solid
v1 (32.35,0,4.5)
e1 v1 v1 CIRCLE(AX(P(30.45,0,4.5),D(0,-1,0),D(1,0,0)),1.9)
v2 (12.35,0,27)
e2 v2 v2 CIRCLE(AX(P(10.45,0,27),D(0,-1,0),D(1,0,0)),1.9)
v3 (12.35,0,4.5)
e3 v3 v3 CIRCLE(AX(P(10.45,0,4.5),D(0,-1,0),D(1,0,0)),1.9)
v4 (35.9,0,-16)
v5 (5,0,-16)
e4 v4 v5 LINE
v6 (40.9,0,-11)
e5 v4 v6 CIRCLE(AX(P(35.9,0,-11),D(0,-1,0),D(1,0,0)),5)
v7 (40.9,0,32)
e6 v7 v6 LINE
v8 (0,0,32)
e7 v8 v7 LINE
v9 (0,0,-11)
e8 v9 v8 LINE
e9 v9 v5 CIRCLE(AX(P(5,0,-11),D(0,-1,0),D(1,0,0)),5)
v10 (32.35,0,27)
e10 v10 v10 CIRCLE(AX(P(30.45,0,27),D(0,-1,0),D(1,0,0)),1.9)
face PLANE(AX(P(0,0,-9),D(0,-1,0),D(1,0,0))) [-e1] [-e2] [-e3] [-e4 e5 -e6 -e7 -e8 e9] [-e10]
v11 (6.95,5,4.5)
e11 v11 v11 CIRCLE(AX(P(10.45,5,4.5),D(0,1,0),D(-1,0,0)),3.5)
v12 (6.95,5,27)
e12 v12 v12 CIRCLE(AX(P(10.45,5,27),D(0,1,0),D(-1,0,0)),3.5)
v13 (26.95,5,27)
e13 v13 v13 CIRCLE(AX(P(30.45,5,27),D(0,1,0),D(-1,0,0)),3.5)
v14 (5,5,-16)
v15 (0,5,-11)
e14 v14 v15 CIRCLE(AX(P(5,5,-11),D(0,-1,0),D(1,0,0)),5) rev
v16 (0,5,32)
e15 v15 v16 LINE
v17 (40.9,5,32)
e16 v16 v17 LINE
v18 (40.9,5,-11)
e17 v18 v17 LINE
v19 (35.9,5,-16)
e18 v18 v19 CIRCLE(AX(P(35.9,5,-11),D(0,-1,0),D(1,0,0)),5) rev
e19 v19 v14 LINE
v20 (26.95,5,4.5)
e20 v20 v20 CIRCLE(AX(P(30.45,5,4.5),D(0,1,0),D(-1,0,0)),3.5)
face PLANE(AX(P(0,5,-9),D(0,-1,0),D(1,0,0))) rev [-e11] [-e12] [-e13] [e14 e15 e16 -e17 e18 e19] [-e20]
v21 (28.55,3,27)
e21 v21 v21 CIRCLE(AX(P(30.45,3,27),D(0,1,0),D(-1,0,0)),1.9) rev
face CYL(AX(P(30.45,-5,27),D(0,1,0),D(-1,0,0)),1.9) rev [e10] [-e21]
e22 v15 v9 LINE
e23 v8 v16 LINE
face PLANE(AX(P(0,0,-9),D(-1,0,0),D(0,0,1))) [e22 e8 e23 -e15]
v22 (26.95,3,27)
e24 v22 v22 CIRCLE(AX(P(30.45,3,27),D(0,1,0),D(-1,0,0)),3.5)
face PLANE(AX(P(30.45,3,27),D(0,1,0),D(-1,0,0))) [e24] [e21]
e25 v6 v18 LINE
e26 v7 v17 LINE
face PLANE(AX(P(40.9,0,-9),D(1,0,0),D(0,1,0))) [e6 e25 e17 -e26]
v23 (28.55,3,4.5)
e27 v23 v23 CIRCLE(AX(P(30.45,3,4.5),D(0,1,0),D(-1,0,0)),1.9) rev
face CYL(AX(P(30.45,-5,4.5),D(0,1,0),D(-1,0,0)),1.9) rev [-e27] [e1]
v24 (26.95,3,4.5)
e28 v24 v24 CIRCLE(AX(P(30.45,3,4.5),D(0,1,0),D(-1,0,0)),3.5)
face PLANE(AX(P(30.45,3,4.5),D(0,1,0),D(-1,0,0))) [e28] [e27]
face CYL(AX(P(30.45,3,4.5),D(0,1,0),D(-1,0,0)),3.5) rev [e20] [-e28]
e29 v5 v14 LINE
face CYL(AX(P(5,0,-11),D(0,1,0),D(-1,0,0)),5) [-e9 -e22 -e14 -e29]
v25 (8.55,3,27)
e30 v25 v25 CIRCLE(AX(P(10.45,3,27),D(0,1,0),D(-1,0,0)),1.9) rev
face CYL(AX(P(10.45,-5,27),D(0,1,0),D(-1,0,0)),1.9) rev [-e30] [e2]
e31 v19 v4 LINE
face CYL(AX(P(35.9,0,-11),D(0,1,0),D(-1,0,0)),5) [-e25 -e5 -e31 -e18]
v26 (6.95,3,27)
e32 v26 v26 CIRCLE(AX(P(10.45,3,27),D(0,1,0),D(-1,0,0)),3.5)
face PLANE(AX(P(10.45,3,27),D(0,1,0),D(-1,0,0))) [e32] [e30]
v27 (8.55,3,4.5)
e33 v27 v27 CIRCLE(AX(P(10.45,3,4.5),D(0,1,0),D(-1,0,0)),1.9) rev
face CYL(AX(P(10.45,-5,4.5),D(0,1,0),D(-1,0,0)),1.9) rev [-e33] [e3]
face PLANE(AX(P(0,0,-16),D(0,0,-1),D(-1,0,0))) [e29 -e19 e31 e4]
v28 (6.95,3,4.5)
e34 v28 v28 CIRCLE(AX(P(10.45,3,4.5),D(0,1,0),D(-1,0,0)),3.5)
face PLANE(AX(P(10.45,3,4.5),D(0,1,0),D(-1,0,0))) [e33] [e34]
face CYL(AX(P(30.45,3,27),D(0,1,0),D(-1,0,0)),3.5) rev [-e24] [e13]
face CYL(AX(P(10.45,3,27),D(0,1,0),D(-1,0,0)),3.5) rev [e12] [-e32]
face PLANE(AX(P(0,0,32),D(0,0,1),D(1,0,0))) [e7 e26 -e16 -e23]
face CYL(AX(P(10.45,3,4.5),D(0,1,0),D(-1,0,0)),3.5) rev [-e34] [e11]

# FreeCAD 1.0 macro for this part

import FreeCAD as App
import Part
import Sketcher

V = App.Vector


def edges_at(feature, points):
    """Names of the edges that pass closest to the given points."""
    edges = feature.Shape.Edges
    near = lambda p: min(range(len(edges)), key=lambda i: edges[i].distToShape(Part.Vertex(*p))[0])
    return sorted({f"Edge{near(p) + 1}" for p in points})

doc = App.newDocument("Part")
body = doc.addObject("PartDesign::Body", "Body")

sketch1 = body.newObject("Sketcher::SketchObject", "Sketch")
sketch1.AttachmentSupport = (doc.getObject("XY_Plane"), [""])
sketch1.MapMode = "FlatFace"
sketch1.addGeometry(Part.LineSegment(V(-8, 25, 0), V(-8, 0, 0)), False)
sketch1.addGeometry(Part.LineSegment(V(-8, 0, 0), V(48.9, 0, 0)), False)
sketch1.addGeometry(Part.LineSegment(V(48.9, 0, 0), V(48.9, 25, 0)), False)
sketch1.addGeometry(Part.LineSegment(V(48.9, 25, 0), V(40.9, 25, 0)), False)
sketch1.addGeometry(Part.LineSegment(V(40.9, 25, 0), V(40.9, 5, 0)), False)
sketch1.addGeometry(Part.LineSegment(V(40.9, 5, 0), V(0, 5, 0)), False)
sketch1.addGeometry(Part.LineSegment(V(0, 5, 0), V(0, 25, 0)), False)
sketch1.addGeometry(Part.LineSegment(V(0, 25, 0), V(-8, 25, 0)), False)
sketch1.addGeometry(Part.Circle(V(-3.9, 10, 0), V(0, 0, 1), 2), False)
sketch1.addGeometry(Part.Circle(V(-3.9, 20, 0), V(0, 0, 1), 2), False)
sketch1.addGeometry(Part.Circle(V(44.8, 20, 0), V(0, 0, 1), 2), False)
sketch1.addGeometry(Part.Circle(V(44.8, 10, 0), V(0, 0, 1), 2), False)
sketch1.addConstraint(Sketcher.Constraint("Coincident", 0, 2, 1, 1))
sketch1.addConstraint(Sketcher.Constraint("Coincident", 1, 2, 2, 1))
sketch1.addConstraint(Sketcher.Constraint("Coincident", 2, 2, 3, 1))
sketch1.addConstraint(Sketcher.Constraint("Coincident", 3, 2, 4, 1))
sketch1.addConstraint(Sketcher.Constraint("Coincident", 4, 2, 5, 1))
sketch1.addConstraint(Sketcher.Constraint("Coincident", 5, 2, 6, 1))
sketch1.addConstraint(Sketcher.Constraint("Coincident", 6, 2, 7, 1))
sketch1.addConstraint(Sketcher.Constraint("Coincident", 7, 2, 0, 1))
sketch1.addConstraint(Sketcher.Constraint("Vertical", 0))
sketch1.addConstraint(Sketcher.Constraint("Horizontal", 1))
sketch1.addConstraint(Sketcher.Constraint("Vertical", 2))
sketch1.addConstraint(Sketcher.Constraint("Horizontal", 3))
sketch1.addConstraint(Sketcher.Constraint("Vertical", 4))
sketch1.addConstraint(Sketcher.Constraint("Horizontal", 5))
sketch1.addConstraint(Sketcher.Constraint("Vertical", 6))
sketch1.addConstraint(Sketcher.Constraint("Horizontal", 7))
sketch1.addConstraint(Sketcher.Constraint("Equal", 8, 9))
sketch1.addConstraint(Sketcher.Constraint("Equal", 9, 10))
sketch1.addConstraint(Sketcher.Constraint("Equal", 10, 11))
sketch1.addConstraint(Sketcher.Constraint("PointOnObject", 0, 2, -1))
sketch1.addConstraint(Sketcher.Constraint("PointOnObject", 5, 2, -2))
sketch1.addConstraint(Sketcher.Constraint("Horizontal", 9, 3, 10, 3))
sketch1.addConstraint(Sketcher.Constraint("Horizontal", 8, 3, 11, 3))
sketch1.addConstraint(Sketcher.Constraint("Horizontal", 3, 2, 6, 2))
sketch1.addConstraint(Sketcher.Constraint("Vertical", 8, 3, 9, 3))
sketch1.addConstraint(Sketcher.Constraint("Vertical", 10, 3, 11, 3))
sketch1.addConstraint(Sketcher.Constraint("Equal", 3, 7))
sketch1.addConstraint(Sketcher.Constraint("Diameter", 8, 4.0))
sketch1.addConstraint(Sketcher.Constraint("DistanceX", 3, 2, 3, 1, 8.0))
sketch1.addConstraint(Sketcher.Constraint("DistanceY", 0, 2, 0, 1, 25.0))
sketch1.addConstraint(Sketcher.Constraint("DistanceY", 4, 2, 4, 1, 20.0))
sketch1.addConstraint(Sketcher.Constraint("DistanceX", 1, 1, 1, 2, 56.9))
sketch1.addConstraint(Sketcher.Constraint("DistanceY", -1, 1, 8, 3, 10.0))
sketch1.addConstraint(Sketcher.Constraint("DistanceY", -1, 1, 9, 3, 20.0))
sketch1.addConstraint(Sketcher.Constraint("DistanceX", 9, 3, 10, 3, 48.6))
sketch1.addConstraint(Sketcher.Constraint("DistanceX", 8, 3, -1, 1, 3.85))
pad1 = body.newObject("PartDesign::Pad", "Pad")
pad1.Profile = sketch1
pad1.Type = "TwoLengths"
pad1.Length = 9
pad1.Length2 = 9

sketch2 = body.newObject("Sketcher::SketchObject", "Sketch001")
sketch2.AttachmentSupport = (doc.getObject("XZ_Plane"), [""])
sketch2.MapMode = "FlatFace"
sketch2.AttachmentOffset = App.Placement(V(0, 0, -5), App.Rotation())
sketch2.addGeometry(Part.LineSegment(V(0, -16, 0), V(0, -9, 0)), False)
sketch2.addGeometry(Part.LineSegment(V(0, -9, 0), V(41, -9, 0)), False)
sketch2.addGeometry(Part.LineSegment(V(41, -9, 0), V(41, -16, 0)), False)
sketch2.addGeometry(Part.LineSegment(V(41, -16, 0), V(0, -16, 0)), False)
sketch2.addGeometry(Part.LineSegment(V(0, 9, 0), V(0, 32, 0)), False)
sketch2.addGeometry(Part.LineSegment(V(0, 32, 0), V(41, 32, 0)), False)
sketch2.addGeometry(Part.LineSegment(V(41, 32, 0), V(41, 9, 0)), False)
sketch2.addGeometry(Part.LineSegment(V(41, 9, 0), V(0, 9, 0)), False)
sketch2.addConstraint(Sketcher.Constraint("Coincident", 0, 2, 1, 1))
sketch2.addConstraint(Sketcher.Constraint("Coincident", 1, 2, 2, 1))
sketch2.addConstraint(Sketcher.Constraint("Coincident", 2, 2, 3, 1))
sketch2.addConstraint(Sketcher.Constraint("Coincident", 3, 2, 0, 1))
sketch2.addConstraint(Sketcher.Constraint("Coincident", 4, 2, 5, 1))
sketch2.addConstraint(Sketcher.Constraint("Coincident", 5, 2, 6, 1))
sketch2.addConstraint(Sketcher.Constraint("Coincident", 6, 2, 7, 1))
sketch2.addConstraint(Sketcher.Constraint("Coincident", 7, 2, 4, 1))
sketch2.addConstraint(Sketcher.Constraint("Vertical", 0))
sketch2.addConstraint(Sketcher.Constraint("Horizontal", 1))
sketch2.addConstraint(Sketcher.Constraint("Vertical", 2))
sketch2.addConstraint(Sketcher.Constraint("Horizontal", 3))
sketch2.addConstraint(Sketcher.Constraint("Vertical", 4))
sketch2.addConstraint(Sketcher.Constraint("Horizontal", 5))
sketch2.addConstraint(Sketcher.Constraint("Vertical", 6))
sketch2.addConstraint(Sketcher.Constraint("Horizontal", 7))
sketch2.addConstraint(Sketcher.Constraint("Symmetric", 0, 2, 7, 2, -1, 1))
sketch2.addConstraint(Sketcher.Constraint("PointOnObject", 0, 2, -2))
sketch2.addConstraint(Sketcher.Constraint("Vertical", 2, 2, 5, 2))
sketch2.addConstraint(Sketcher.Constraint("DistanceY", 0, 1, 0, 2, 7.0))
sketch2.addConstraint(Sketcher.Constraint("DistanceY", 4, 1, 4, 2, 23.0))
sketch2.addConstraint(Sketcher.Constraint("DistanceX", 1, 1, 1, 2, 40.9))
sketch2.addConstraint(Sketcher.Constraint("DistanceY", 0, 2, -1, 1, 9.0))
pad2 = body.newObject("PartDesign::Pad", "Pad001")
pad2.Profile = sketch2
pad2.Length = 5

sketch3 = body.newObject("Sketcher::SketchObject", "Sketch002")
sketch3.AttachmentSupport = (doc.getObject("XZ_Plane"), [""])
sketch3.MapMode = "FlatFace"
sketch3.AttachmentOffset = App.Placement(V(0, 0, -25), App.Rotation())
sketch3.addGeometry(Part.LineSegment(V(-8, -9, 0), V(-8, 9, 0)), False)
sketch3.addGeometry(Part.LineSegment(V(-8, 9, 0), V(0, 9, 0)), False)
sketch3.addGeometry(Part.LineSegment(V(0, 9, 0), V(0, -9, 0)), False)
sketch3.addGeometry(Part.LineSegment(V(0, -9, 0), V(-8, -9, 0)), False)
sketch3.addGeometry(Part.LineSegment(V(41, -9, 0), V(41, 9, 0)), False)
sketch3.addGeometry(Part.LineSegment(V(41, 9, 0), V(49, 9, 0)), False)
sketch3.addGeometry(Part.LineSegment(V(49, 9, 0), V(49, -9, 0)), False)
sketch3.addGeometry(Part.LineSegment(V(49, -9, 0), V(41, -9, 0)), False)
sketch3.addConstraint(Sketcher.Constraint("Coincident", 0, 2, 1, 1))
sketch3.addConstraint(Sketcher.Constraint("Coincident", 1, 2, 2, 1))
sketch3.addConstraint(Sketcher.Constraint("Coincident", 2, 2, 3, 1))
sketch3.addConstraint(Sketcher.Constraint("Coincident", 3, 2, 0, 1))
sketch3.addConstraint(Sketcher.Constraint("Coincident", 4, 2, 5, 1))
sketch3.addConstraint(Sketcher.Constraint("Coincident", 5, 2, 6, 1))
sketch3.addConstraint(Sketcher.Constraint("Coincident", 6, 2, 7, 1))
sketch3.addConstraint(Sketcher.Constraint("Coincident", 7, 2, 4, 1))
sketch3.addConstraint(Sketcher.Constraint("Vertical", 0))
sketch3.addConstraint(Sketcher.Constraint("Horizontal", 1))
sketch3.addConstraint(Sketcher.Constraint("Vertical", 2))
sketch3.addConstraint(Sketcher.Constraint("Horizontal", 3))
sketch3.addConstraint(Sketcher.Constraint("Vertical", 4))
sketch3.addConstraint(Sketcher.Constraint("Horizontal", 5))
sketch3.addConstraint(Sketcher.Constraint("Vertical", 6))
sketch3.addConstraint(Sketcher.Constraint("Horizontal", 7))
sketch3.addConstraint(Sketcher.Constraint("Symmetric", 1, 2, 2, 2, -1, 1))
sketch3.addConstraint(Sketcher.Constraint("Horizontal", 1, 2, 4, 2))
sketch3.addConstraint(Sketcher.Constraint("Horizontal", 3, 2, 6, 2))
sketch3.addConstraint(Sketcher.Constraint("Equal", 3, 5))
sketch3.addConstraint(Sketcher.Constraint("DistanceX", 1, 1, 1, 2, 8.0))
sketch3.addConstraint(Sketcher.Constraint("DistanceY", 0, 1, 0, 2, 18.0))
sketch3.addConstraint(Sketcher.Constraint("DistanceX", -1, 1, 4, 2, 40.9))
pocket1 = body.newObject("PartDesign::Pocket", "Pocket")
pocket1.Profile = sketch3
pocket1.Type = "ThroughAll"
pocket1.Reversed = True

sketch4 = body.newObject("Sketcher::SketchObject", "Sketch003")
sketch4.AttachmentSupport = (doc.getObject("XZ_Plane"), [""])
sketch4.MapMode = "FlatFace"
sketch4.AttachmentOffset = App.Placement(V(0, 0, -5), App.Rotation())
sketch4.addGeometry(Part.Circle(V(10.4, 4.5, 0), V(0, 0, 1), 1.9), False)
sketch4.addGeometry(Part.Circle(V(30.4, 4.5, 0), V(0, 0, 1), 1.9), False)
sketch4.addGeometry(Part.Circle(V(10.4, 27, 0), V(0, 0, 1), 1.9), False)
sketch4.addGeometry(Part.Circle(V(30.4, 27, 0), V(0, 0, 1), 1.9), False)
sketch4.addConstraint(Sketcher.Constraint("Equal", 0, 1))
sketch4.addConstraint(Sketcher.Constraint("Equal", 1, 2))
sketch4.addConstraint(Sketcher.Constraint("Equal", 2, 3))
sketch4.addConstraint(Sketcher.Constraint("Horizontal", 0, 3, 1, 3))
sketch4.addConstraint(Sketcher.Constraint("Horizontal", 2, 3, 3, 3))
sketch4.addConstraint(Sketcher.Constraint("Vertical", 0, 3, 2, 3))
sketch4.addConstraint(Sketcher.Constraint("Vertical", 1, 3, 3, 3))
sketch4.addConstraint(Sketcher.Constraint("Diameter", 0, 3.8))
sketch4.addConstraint(Sketcher.Constraint("DistanceY", -1, 1, 2, 3, 27.0))
sketch4.addConstraint(Sketcher.Constraint("DistanceX", 0, 3, 1, 3, 20.0))
sketch4.addConstraint(Sketcher.Constraint("DistanceY", -1, 1, 0, 3, 4.5))
sketch4.addConstraint(Sketcher.Constraint("DistanceX", -1, 1, 0, 3, 10.45))
pocket2 = body.newObject("PartDesign::Pocket", "Pocket001")
pocket2.Profile = sketch4
pocket2.Length = 10
pocket2.Reversed = True
doc.recompute()

fillet = body.newObject("PartDesign::Fillet", "Fillet")
fillet.Base = (pocket2, edges_at(pocket2, [(0, 2.5, -16), (40.9, 2.5, -16)]))
fillet.Radius = 5

sketch5 = body.newObject("Sketcher::SketchObject", "Sketch004")
sketch5.AttachmentSupport = (doc.getObject("XZ_Plane"), [""])
sketch5.MapMode = "FlatFace"
sketch5.AttachmentOffset = App.Placement(V(0, 0, -5), App.Rotation())
sketch5.addGeometry(Part.Circle(V(10.4, 4.5, 0), V(0, 0, 1), 3.5), False)
sketch5.addGeometry(Part.Circle(V(30.4, 4.5, 0), V(0, 0, 1), 3.5), False)
sketch5.addGeometry(Part.Circle(V(30.4, 27, 0), V(0, 0, 1), 3.5), False)
sketch5.addGeometry(Part.Circle(V(10.4, 27, 0), V(0, 0, 1), 3.5), False)
sketch5.addConstraint(Sketcher.Constraint("Equal", 0, 1))
sketch5.addConstraint(Sketcher.Constraint("Equal", 1, 2))
sketch5.addConstraint(Sketcher.Constraint("Equal", 2, 3))
sketch5.addConstraint(Sketcher.Constraint("Horizontal", 0, 3, 1, 3))
sketch5.addConstraint(Sketcher.Constraint("Horizontal", 2, 3, 3, 3))
sketch5.addConstraint(Sketcher.Constraint("Vertical", 1, 3, 2, 3))
sketch5.addConstraint(Sketcher.Constraint("Vertical", 0, 3, 3, 3))
sketch5.addConstraint(Sketcher.Constraint("Diameter", 0, 7.0))
sketch5.addConstraint(Sketcher.Constraint("DistanceY", -1, 1, 2, 3, 27.0))
sketch5.addConstraint(Sketcher.Constraint("DistanceX", 0, 3, 1, 3, 20.0))
sketch5.addConstraint(Sketcher.Constraint("DistanceY", -1, 1, 0, 3, 4.5))
sketch5.addConstraint(Sketcher.Constraint("DistanceX", -1, 1, 0, 3, 10.45))
pocket3 = body.newObject("PartDesign::Pocket", "Pocket002")
pocket3.Profile = sketch5
pocket3.Length = 2
pocket3.Reversed = True

doc.recompute()
